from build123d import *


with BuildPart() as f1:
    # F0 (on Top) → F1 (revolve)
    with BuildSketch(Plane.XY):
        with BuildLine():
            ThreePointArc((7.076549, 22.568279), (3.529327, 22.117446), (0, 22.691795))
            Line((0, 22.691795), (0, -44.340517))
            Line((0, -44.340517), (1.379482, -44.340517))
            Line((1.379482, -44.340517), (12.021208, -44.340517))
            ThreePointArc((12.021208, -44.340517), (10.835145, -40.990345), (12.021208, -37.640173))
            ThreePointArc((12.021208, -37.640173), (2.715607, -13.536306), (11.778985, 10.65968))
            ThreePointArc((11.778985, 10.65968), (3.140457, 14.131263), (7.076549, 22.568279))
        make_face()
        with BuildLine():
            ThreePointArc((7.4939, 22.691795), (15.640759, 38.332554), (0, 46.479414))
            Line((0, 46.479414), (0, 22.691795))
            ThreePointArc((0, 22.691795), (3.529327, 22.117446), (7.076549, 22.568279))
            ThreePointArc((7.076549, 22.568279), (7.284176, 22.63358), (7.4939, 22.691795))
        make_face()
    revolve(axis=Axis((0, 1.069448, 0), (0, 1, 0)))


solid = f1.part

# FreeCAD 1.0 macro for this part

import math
import FreeCAD as App
import Part
import Sketcher
Q = App.Units.Quantity

doc = App.newDocument("Part")
body = doc.addObject("PartDesign::Body", "Body")

# Sketch on XY plane
sketch1 = body.newObject("Sketcher::SketchObject", "Sketch")
sketch1.AttachmentSupport = (doc.getObject("XY_Plane"), [""])
sketch1.MapMode = "FlatFace"
sketch1.addGeometry([
    Part.LineSegment(App.Vector(0, -44.34, 0), App.Vector(12.02, -44.34, 0)),  # 0
    Part.ArcOfCircle(Part.Circle(App.Vector(16.16, -40.99, 0), App.Vector(0, 0, 1), 5.32), math.radians(141), math.radians(219)),  # 1
    Part.ArcOfCircle(Part.Circle(App.Vector(39.06, -13.35, 0), App.Vector(0, 0, 1), 36.34), math.radians(139), math.radians(222)),  # 2
    Part.ArcOfCircle(Part.Circle(App.Vector(9.1, 16.49, 0), App.Vector(0, 0, 1), 6.41), math.radians(108), math.radians(295)),  # 3
    Part.ArcOfCircle(Part.Circle(App.Vector(9.1, 16.49, 0), App.Vector(0, 0, 1), 6.41), math.radians(104.54), math.radians(108.43)),  # 4
    Part.ArcOfCircle(Part.Circle(App.Vector(3.75, 34.59, 0), App.Vector(0, 0, 1), 12.47), math.radians(-73), math.radians(107)),  # 5
    Part.LineSegment(App.Vector(0, 46.48, 0), App.Vector(0, -44.34, 0)),  # 6
], False)
sketch1.addConstraint([
    Sketcher.Constraint("Coincident", 0, 2, 1, 2),
    Sketcher.Constraint("Coincident", 1, 1, 2, 2),
    Sketcher.Constraint("Coincident", 2, 1, 3, 2),
    Sketcher.Constraint("Coincident", 3, 1, 4, 2),
    Sketcher.Constraint("Coincident", 4, 1, 5, 1),
    Sketcher.Constraint("Coincident", 5, 2, 6, 1),
    Sketcher.Constraint("Coincident", 6, 2, 0, 1),
    Sketcher.Constraint("Horizontal", 0),
    Sketcher.Constraint("Vertical", 6),
    Sketcher.Constraint("PointOnObject", 5, 2, -2),
    Sketcher.Constraint("Vertical", 0, 2, 1, 1),
    Sketcher.Constraint("Radius", 1, Q("5.324505 mm")),
    Sketcher.Constraint("Radius", 2, Q("36.342912 mm")),
    Sketcher.Constraint("Radius", 3, Q("6.411193 mm")),
    Sketcher.Constraint("Radius", 4, Q("6.410635 mm")),
    Sketcher.Constraint("Radius", 5, Q("12.470058 mm")),
    Sketcher.Constraint("DistanceY", 6, 2, 6, 1, Q("90.819931 mm")),
    Sketcher.Constraint("DistanceY", -1, 1, 4, 3, Q("16.486499 mm")),
    Sketcher.Constraint("DistanceX", -1, 1, 4, 1, Q("7.4939 mm")),
    Sketcher.Constraint("DistanceX", 5, 3, 1, 3, Q("12.412701 mm")),
    Sketcher.Constraint("DistanceX", 5, 3, 3, 1, Q("3.3296 mm")),
    Sketcher.Constraint("DistanceY", 2, 1, 3, 1, Q("11.908599 mm")),
    Sketcher.Constraint("DistanceX", 0, 1, 0, 2, Q("12.021208 mm")),
    Sketcher.Constraint("DistanceX", -1, 1, 1, 3, Q("16.15965 mm")),
    Sketcher.Constraint("DistanceY", 2, 3, -1, 1, Q("13.35405 mm")),
    Sketcher.Constraint("DistanceX", -1, 1, 4, 3, Q("9.103419 mm")),
])
revolution = body.newObject("PartDesign::Revolution", "Revolution")
revolution.Profile = sketch1
revolution.ReferenceAxis = (sketch1, ["V_Axis"])
revolution.Angle = 360

doc.recompute()
